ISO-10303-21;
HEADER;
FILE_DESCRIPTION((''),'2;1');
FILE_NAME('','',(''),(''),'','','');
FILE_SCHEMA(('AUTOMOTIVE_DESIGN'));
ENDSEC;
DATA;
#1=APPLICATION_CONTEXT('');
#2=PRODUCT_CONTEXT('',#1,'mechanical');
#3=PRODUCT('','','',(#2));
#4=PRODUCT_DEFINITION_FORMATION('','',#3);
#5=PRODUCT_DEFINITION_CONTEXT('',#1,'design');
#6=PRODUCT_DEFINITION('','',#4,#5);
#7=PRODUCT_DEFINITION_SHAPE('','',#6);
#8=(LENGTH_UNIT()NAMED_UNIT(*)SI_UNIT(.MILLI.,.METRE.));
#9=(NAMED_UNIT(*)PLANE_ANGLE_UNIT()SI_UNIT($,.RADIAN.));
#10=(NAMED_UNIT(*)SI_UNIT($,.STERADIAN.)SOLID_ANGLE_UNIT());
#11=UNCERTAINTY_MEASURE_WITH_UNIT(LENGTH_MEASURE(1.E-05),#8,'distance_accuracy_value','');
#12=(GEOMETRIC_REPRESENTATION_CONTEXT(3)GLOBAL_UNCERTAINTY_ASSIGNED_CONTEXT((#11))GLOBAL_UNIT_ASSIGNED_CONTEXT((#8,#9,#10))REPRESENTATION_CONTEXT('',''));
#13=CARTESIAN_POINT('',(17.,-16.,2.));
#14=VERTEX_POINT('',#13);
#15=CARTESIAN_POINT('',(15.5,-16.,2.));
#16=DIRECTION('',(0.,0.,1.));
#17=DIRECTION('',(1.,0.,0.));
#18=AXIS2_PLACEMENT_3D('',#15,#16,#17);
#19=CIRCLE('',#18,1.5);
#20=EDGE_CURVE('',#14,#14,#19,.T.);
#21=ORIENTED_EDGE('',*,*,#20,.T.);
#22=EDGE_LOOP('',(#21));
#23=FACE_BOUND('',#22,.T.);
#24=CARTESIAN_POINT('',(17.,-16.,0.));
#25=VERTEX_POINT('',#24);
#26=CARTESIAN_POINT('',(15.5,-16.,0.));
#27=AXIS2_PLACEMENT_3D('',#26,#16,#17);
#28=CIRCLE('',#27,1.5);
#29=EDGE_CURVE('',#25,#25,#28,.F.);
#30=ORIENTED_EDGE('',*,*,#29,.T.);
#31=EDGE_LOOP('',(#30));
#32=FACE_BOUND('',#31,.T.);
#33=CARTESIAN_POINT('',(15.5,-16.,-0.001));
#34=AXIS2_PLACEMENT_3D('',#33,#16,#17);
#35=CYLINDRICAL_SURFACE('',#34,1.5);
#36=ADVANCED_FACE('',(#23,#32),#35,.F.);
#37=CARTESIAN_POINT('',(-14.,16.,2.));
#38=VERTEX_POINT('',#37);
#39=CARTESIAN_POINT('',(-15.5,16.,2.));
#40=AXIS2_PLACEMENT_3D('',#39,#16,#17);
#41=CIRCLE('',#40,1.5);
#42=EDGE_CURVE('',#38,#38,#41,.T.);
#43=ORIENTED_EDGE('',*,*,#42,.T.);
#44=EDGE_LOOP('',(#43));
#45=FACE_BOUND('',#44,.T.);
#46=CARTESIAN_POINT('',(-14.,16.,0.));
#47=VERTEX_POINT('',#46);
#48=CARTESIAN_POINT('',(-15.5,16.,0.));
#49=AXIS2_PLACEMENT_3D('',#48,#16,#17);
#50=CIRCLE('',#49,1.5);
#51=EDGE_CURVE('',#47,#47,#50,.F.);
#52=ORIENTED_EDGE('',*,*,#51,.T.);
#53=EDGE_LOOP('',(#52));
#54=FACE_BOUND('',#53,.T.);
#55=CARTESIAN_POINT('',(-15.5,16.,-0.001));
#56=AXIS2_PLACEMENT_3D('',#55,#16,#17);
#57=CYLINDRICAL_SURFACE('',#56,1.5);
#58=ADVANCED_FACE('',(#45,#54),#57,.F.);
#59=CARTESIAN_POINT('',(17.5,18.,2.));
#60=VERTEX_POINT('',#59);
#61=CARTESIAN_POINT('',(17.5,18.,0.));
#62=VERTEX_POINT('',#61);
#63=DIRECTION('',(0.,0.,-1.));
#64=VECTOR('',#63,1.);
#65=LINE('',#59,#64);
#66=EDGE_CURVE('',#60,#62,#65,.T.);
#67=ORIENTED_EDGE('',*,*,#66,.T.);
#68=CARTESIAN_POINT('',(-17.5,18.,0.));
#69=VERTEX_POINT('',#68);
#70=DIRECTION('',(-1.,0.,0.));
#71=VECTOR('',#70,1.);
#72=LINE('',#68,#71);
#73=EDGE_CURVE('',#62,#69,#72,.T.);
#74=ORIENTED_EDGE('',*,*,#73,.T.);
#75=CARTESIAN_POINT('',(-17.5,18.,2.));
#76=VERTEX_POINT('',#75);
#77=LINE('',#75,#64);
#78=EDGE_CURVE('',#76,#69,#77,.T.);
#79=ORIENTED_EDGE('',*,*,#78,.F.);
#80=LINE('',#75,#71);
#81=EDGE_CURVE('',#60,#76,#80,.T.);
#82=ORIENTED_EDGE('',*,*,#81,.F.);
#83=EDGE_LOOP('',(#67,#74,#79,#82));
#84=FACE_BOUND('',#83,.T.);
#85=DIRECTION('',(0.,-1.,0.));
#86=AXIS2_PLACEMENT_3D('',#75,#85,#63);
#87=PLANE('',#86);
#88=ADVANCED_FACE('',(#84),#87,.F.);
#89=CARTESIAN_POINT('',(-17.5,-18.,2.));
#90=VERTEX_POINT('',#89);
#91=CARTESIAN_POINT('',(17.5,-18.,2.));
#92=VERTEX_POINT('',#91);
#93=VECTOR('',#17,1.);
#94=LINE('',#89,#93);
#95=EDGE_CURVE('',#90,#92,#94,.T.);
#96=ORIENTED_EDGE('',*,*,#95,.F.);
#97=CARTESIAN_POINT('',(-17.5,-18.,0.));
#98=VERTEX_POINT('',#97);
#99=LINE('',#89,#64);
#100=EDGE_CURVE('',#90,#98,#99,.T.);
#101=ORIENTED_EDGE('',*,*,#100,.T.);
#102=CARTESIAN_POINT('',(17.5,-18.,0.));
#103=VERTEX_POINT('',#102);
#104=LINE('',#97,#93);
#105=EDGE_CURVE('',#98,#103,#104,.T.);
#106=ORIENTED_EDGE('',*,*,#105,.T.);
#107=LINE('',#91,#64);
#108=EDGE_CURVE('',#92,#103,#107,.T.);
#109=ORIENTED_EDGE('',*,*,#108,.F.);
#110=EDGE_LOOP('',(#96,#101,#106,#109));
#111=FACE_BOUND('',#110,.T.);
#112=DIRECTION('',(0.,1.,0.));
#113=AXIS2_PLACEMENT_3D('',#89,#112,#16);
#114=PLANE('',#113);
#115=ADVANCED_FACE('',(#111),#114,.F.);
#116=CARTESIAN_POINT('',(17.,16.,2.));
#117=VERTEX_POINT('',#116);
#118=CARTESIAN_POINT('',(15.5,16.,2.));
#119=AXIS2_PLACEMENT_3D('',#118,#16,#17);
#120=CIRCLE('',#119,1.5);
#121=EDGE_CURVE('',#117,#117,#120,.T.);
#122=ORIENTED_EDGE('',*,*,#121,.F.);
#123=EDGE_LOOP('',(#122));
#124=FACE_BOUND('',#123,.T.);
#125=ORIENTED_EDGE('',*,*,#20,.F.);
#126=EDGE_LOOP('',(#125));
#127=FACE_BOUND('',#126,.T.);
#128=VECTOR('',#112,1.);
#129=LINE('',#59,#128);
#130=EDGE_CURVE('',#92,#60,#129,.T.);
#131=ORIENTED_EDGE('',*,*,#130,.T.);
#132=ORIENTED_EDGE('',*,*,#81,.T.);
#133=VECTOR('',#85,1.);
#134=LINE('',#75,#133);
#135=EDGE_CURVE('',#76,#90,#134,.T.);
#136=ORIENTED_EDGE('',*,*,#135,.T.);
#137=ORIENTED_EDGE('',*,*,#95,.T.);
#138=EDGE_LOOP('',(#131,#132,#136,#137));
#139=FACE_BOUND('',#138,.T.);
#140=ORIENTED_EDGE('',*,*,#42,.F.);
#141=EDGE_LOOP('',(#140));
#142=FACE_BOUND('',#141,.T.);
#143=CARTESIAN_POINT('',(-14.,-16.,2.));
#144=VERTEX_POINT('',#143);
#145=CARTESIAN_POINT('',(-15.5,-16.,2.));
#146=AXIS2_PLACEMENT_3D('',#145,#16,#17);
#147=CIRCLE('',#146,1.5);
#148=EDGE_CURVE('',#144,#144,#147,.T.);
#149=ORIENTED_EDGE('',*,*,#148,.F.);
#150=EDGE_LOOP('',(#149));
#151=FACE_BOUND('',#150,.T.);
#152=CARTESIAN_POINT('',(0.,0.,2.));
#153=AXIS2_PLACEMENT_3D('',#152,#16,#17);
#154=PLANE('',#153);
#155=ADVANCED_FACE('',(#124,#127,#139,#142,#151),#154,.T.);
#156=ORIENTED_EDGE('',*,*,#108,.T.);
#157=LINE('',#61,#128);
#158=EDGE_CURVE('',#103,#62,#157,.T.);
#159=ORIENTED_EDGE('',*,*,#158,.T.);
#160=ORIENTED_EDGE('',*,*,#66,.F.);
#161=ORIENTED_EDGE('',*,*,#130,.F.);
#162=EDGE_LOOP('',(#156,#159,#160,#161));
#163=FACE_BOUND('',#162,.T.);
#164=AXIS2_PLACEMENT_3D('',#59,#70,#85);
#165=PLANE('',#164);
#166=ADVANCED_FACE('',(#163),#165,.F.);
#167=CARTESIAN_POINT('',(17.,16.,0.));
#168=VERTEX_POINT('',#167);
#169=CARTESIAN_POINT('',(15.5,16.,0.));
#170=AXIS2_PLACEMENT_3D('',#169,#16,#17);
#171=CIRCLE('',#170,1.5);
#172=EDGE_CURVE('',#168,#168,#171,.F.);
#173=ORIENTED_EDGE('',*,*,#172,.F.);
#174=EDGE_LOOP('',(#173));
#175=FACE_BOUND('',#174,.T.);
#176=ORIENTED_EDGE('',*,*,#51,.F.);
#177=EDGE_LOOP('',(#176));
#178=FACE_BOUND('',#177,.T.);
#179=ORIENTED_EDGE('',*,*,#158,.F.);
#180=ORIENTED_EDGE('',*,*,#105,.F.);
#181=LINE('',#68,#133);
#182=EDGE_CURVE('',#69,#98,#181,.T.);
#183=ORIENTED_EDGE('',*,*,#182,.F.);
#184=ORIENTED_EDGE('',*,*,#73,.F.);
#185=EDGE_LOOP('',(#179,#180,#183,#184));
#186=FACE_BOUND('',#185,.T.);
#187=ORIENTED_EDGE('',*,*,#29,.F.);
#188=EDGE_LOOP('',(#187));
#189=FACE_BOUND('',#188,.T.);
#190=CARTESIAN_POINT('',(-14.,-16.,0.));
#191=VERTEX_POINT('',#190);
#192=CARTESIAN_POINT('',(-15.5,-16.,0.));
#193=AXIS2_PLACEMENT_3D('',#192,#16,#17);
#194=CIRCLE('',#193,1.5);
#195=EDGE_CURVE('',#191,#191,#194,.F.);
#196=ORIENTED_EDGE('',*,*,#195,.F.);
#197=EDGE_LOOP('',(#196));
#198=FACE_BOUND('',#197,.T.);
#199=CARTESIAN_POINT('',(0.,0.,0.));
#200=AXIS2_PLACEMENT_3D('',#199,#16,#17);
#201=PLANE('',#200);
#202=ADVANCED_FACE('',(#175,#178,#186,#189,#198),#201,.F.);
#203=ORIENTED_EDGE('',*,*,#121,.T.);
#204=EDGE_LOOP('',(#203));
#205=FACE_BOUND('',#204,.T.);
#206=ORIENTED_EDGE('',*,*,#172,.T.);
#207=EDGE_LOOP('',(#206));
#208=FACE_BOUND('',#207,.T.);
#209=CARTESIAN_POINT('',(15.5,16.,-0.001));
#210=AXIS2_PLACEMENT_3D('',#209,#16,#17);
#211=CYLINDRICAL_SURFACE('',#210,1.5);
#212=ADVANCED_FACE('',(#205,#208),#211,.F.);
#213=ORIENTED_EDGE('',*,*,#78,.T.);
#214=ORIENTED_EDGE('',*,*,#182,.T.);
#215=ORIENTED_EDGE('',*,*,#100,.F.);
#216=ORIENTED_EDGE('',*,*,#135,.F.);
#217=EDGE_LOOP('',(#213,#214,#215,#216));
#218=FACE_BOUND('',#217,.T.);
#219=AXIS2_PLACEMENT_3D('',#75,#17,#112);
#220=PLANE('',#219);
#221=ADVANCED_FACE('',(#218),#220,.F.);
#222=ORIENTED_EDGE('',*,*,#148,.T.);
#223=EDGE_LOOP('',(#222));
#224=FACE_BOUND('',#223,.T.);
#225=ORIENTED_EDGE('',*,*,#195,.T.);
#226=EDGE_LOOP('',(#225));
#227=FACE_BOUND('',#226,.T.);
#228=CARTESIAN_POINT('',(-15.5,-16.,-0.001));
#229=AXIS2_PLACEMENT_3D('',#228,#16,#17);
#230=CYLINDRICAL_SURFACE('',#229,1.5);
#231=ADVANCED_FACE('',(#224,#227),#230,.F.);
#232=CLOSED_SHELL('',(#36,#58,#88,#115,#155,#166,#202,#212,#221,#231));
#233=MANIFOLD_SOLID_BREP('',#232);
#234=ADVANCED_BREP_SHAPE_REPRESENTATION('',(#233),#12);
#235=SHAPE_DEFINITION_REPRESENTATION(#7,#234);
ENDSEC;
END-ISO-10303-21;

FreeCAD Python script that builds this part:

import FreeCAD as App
import Part
import Sketcher

V = App.Vector
Q = App.Units.Quantity

doc = App.newDocument("Part")
body = doc.addObject("PartDesign::Body", "Body")

sketch1 = body.newObject("Sketcher::SketchObject", "Sketch")
sketch1.AttachmentSupport = (doc.getObject("XY_Plane"), [""])
sketch1.MapMode = "FlatFace"
sketch1.addGeometry([
    Part.LineSegment(V(-17.5, 18, 0), V(-17.5, -18, 0)),
    Part.LineSegment(V(-17.5, -18, 0), V(17.5, -18, 0)),
    Part.LineSegment(V(17.5, -18, 0), V(17.5, 18, 0)),
    Part.LineSegment(V(17.5, 18, 0), V(-17.5, 18, 0)),
], False)
sketch1.addConstraint([
    Sketcher.Constraint("Coincident", 0, 2, 1, 1),
    Sketcher.Constraint("Coincident", 1, 2, 2, 1),
    Sketcher.Constraint("Coincident", 2, 2, 3, 1),
    Sketcher.Constraint("Coincident", 3, 2, 0, 1),
    Sketcher.Constraint("Vertical", 0),
    Sketcher.Constraint("Horizontal", 1),
    Sketcher.Constraint("Vertical", 2),
    Sketcher.Constraint("Horizontal", 3),
    Sketcher.Constraint("Symmetric", 0, 2, 2, 2, -1, 1),
    Sketcher.Constraint("DistanceX", 1, 1, 1, 2, Q("35 mm")),
    Sketcher.Constraint("DistanceY", 0, 2, 0, 1, Q("36 mm")),
])
pad1 = body.newObject("PartDesign::Pad", "Pad")
pad1.Profile = sketch1
pad1.Length = 2

sketch2 = body.newObject("Sketcher::SketchObject", "Sketch001")
sketch2.AttachmentSupport = (doc.getObject("XY_Plane"), [""])
sketch2.MapMode = "FlatFace"
sketch2.AttachmentOffset = App.Placement(V(0, 0, 2), App.Rotation())
sketch2.addGeometry(Part.Circle(V(-15.5, 16, 0), V(0, 0, 1), 1.5), False)
sketch2.addConstraint([
    Sketcher.Constraint("Diameter", 0, Q("3 mm")),
    Sketcher.Constraint("DistanceY", -1, 1, 0, 3, Q("16 mm")),
    Sketcher.Constraint("DistanceX", 0, 3, -1, 1, Q("15.5 mm")),
])
pocket1 = body.newObject("PartDesign::Pocket", "Pocket")
pocket1.Profile = sketch2
pocket1.Type = "UpToFirst"

sketch3 = body.newObject("Sketcher::SketchObject", "Sketch002")
sketch3.AttachmentSupport = (doc.getObject("XY_Plane"), [""])
sketch3.MapMode = "FlatFace"
sketch3.AttachmentOffset = App.Placement(V(0, 0, 2), App.Rotation())
sketch3.addGeometry(Part.Circle(V(15.5, 16, 0), V(0, 0, 1), 1.5), False)
sketch3.addConstraint([
    Sketcher.Constraint("Diameter", 0, Q("3 mm")),
    Sketcher.Constraint("DistanceY", -1, 1, 0, 3, Q("16 mm")),
    Sketcher.Constraint("DistanceX", -1, 1, 0, 3, Q("15.5 mm")),
])
pocket2 = body.newObject("PartDesign::Pocket", "Pocket001")
pocket2.Profile = sketch3
pocket2.Type = "UpToFirst"

sketch4 = body.newObject("Sketcher::SketchObject", "Sketch003")
sketch4.AttachmentSupport = (doc.getObject("XY_Plane"), [""])
sketch4.MapMode = "FlatFace"
sketch4.AttachmentOffset = App.Placement(V(0, 0, 2), App.Rotation())
sketch4.addGeometry(Part.Circle(V(15.5, -16, 0), V(0, 0, 1), 1.5), False)
sketch4.addConstraint([
    Sketcher.Constraint("Diameter", 0, Q("3 mm")),
    Sketcher.Constraint("DistanceY", 0, 3, -1, 1, Q("16 mm")),
    Sketcher.Constraint("DistanceX", -1, 1, 0, 3, Q("15.5 mm")),
])
pocket3 = body.newObject("PartDesign::Pocket", "Pocket002")
pocket3.Profile = sketch4
pocket3.Type = "UpToFirst"

sketch5 = body.newObject("Sketcher::SketchObject", "Sketch004")
sketch5.AttachmentSupport = (doc.getObject("XY_Plane"), [""])
sketch5.MapMode = "FlatFace"
sketch5.AttachmentOffset = App.Placement(V(0, 0, 2), App.Rotation())
sketch5.addGeometry(Part.Circle(V(-15.5, -16, 0), V(0, 0, 1), 1.5), False)
sketch5.addConstraint([
    Sketcher.Constraint("Diameter", 0, Q("3 mm")),
    Sketcher.Constraint("DistanceY", 0, 3, -1, 1, Q("16 mm")),
    Sketcher.Constraint("DistanceX", 0, 3, -1, 1, Q("15.5 mm")),
])
pocket4 = body.newObject("PartDesign::Pocket", "Pocket003")
pocket4.Profile = sketch5
pocket4.Type = "UpToFirst"

doc.recompute()
